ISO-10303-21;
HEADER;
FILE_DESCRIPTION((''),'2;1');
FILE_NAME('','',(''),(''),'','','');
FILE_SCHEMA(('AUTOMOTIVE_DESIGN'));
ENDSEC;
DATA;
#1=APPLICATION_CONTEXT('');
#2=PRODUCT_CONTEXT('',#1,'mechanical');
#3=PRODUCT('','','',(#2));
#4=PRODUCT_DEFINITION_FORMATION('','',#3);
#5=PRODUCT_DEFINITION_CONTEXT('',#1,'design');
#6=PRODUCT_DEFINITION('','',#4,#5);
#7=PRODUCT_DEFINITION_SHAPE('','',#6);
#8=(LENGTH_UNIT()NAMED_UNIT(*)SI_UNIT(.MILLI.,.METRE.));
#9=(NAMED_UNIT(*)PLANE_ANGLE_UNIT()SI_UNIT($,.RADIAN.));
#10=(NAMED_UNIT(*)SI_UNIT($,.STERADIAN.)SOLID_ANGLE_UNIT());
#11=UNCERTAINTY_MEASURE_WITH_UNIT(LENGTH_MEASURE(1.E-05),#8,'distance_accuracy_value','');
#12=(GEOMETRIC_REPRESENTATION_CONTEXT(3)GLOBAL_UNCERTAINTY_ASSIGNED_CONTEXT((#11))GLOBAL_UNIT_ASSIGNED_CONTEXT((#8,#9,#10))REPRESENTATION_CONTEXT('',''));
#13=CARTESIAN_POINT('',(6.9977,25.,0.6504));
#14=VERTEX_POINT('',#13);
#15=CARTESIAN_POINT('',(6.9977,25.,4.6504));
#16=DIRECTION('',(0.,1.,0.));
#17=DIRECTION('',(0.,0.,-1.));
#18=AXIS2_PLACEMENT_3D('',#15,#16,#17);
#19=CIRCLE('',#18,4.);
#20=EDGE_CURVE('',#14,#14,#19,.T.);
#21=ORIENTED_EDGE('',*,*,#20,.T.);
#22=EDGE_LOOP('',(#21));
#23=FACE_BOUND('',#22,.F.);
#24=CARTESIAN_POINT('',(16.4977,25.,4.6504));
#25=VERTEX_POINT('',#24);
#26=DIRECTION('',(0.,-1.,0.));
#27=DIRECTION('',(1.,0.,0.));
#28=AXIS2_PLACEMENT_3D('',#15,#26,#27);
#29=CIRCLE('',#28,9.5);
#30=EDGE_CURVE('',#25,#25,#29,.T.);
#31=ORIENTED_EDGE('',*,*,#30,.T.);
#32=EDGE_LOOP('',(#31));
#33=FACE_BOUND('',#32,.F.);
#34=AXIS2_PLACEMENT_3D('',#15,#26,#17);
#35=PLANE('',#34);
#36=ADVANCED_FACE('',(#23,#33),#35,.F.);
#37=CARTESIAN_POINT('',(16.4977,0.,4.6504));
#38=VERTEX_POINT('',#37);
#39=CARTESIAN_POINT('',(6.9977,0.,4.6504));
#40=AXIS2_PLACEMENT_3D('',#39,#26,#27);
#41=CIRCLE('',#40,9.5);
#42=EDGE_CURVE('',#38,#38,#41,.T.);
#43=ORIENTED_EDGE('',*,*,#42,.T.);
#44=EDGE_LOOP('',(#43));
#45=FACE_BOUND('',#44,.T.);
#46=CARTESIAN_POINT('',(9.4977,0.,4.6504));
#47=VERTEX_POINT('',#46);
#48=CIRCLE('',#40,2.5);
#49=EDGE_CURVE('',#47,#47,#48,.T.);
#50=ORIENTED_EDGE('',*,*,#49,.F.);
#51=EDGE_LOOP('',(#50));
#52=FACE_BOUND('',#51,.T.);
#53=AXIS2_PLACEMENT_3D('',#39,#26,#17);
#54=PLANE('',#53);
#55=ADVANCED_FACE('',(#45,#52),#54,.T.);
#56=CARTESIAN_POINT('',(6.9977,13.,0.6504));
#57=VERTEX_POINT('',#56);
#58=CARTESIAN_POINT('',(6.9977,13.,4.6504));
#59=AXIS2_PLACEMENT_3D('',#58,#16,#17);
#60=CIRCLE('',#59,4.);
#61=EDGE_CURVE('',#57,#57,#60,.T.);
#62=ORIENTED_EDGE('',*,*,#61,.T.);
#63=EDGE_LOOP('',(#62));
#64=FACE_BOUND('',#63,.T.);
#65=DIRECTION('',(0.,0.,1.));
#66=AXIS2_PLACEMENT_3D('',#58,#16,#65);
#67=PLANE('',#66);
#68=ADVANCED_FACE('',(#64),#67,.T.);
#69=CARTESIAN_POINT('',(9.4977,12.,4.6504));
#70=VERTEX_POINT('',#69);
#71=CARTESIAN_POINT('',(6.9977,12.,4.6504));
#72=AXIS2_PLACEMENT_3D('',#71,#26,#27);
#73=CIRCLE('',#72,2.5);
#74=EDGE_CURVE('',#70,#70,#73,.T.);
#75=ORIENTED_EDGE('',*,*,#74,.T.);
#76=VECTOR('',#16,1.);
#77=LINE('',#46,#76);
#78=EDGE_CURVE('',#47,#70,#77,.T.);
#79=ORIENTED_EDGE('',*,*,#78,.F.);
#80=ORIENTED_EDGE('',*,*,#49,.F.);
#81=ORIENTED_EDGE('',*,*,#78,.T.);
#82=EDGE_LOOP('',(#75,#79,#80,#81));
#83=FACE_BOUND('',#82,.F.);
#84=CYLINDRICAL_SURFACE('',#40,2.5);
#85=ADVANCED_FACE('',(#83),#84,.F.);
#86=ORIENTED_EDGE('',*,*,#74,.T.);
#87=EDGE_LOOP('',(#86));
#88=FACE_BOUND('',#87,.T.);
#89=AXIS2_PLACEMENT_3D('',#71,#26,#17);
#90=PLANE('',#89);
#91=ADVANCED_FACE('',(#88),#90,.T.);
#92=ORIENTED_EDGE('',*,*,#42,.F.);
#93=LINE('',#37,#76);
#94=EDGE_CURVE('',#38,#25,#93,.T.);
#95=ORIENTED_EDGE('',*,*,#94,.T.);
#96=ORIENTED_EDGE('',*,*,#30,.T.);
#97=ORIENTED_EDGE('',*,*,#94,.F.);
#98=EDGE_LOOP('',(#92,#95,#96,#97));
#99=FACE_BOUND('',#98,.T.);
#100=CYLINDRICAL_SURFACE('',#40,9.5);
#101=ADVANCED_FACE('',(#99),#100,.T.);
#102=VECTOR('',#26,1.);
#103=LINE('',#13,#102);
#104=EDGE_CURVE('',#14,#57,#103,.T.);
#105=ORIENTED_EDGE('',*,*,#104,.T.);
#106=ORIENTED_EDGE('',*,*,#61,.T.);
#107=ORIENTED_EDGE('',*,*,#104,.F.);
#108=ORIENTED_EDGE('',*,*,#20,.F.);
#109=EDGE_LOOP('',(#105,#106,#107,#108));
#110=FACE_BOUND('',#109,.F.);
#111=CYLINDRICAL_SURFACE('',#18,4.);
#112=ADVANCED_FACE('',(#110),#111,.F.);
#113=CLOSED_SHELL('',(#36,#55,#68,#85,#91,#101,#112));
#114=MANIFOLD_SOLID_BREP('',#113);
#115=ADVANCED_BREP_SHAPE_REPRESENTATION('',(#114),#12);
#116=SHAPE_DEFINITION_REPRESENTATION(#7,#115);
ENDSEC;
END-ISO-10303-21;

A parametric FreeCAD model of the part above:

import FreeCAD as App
import Part
import Sketcher

V = App.Vector
Q = App.Units.Quantity

doc = App.newDocument("Part")
body = doc.addObject("PartDesign::Body", "Body")

# Sketch on XZ plane
sketch1 = doc.addObject("Sketcher::SketchObject", "Sketch")
body.addObject(sketch1)
sketch1.AttachmentSupport = (doc.XZ_Plane, [""])
sketch1.MapMode = "FlatFace"
sketch1.addGeometry(Part.Circle(V(6.9977, 4.6504, 0), V(0, 0, 1), 9.5), False)
sketch1.addConstraint(Sketcher.Constraint("Diameter", 0, Q("19 mm")))
sketch1.addConstraint(Sketcher.Constraint("DistanceX", -1, 1, 0, 3, Q("6.9977 mm")))
sketch1.addConstraint(Sketcher.Constraint("DistanceY", -1, 1, 0, 3, Q("4.6504 mm")))
pad1 = doc.addObject("PartDesign::Pad", "Pad")
body.addObject(pad1)
pad1.Profile = sketch1
pad1.Length = 25
pad1.Reversed = True

# Sketch on XZ plane
sketch2 = doc.addObject("Sketcher::SketchObject", "Sketch001")
body.addObject(sketch2)
sketch2.AttachmentSupport = (doc.XZ_Plane, [""])
sketch2.MapMode = "FlatFace"
sketch2.addGeometry(Part.Circle(V(6.9977, 4.6504, 0), V(0, 0, 1), 2.5), False)
sketch2.addConstraint(Sketcher.Constraint("Diameter", 0, Q("5 mm")))
sketch2.addConstraint(Sketcher.Constraint("DistanceX", -1, 1, 0, 3, Q("6.9977 mm")))
sketch2.addConstraint(Sketcher.Constraint("DistanceY", -1, 1, 0, 3, Q("4.6504 mm")))
pocket1 = doc.addObject("PartDesign::Pocket", "Pocket")
body.addObject(pocket1)
pocket1.Profile = sketch2
pocket1.Length = 12

# Sketch on XZ plane
sketch3 = doc.addObject("Sketcher::SketchObject", "Sketch002")
body.addObject(sketch3)
sketch3.AttachmentSupport = (doc.XZ_Plane, [""])
sketch3.MapMode = "FlatFace"
sketch3.AttachmentOffset = App.Placement(V(0, 0, -25), App.Rotation())
sketch3.addGeometry(Part.Circle(V(6.9977, 4.6504, 0), V(0, 0, 1), 4), False)
sketch3.addConstraint(Sketcher.Constraint("Diameter", 0, Q("8 mm")))
sketch3.addConstraint(Sketcher.Constraint("DistanceX", -1, 1, 0, 3, Q("6.9977 mm")))
sketch3.addConstraint(Sketcher.Constraint("DistanceY", -1, 1, 0, 3, Q("4.6504 mm")))
pocket2 = doc.addObject("PartDesign::Pocket", "Pocket001")
body.addObject(pocket2)
pocket2.Profile = sketch3
pocket2.Length = 12
pocket2.Reversed = True

doc.recompute()
